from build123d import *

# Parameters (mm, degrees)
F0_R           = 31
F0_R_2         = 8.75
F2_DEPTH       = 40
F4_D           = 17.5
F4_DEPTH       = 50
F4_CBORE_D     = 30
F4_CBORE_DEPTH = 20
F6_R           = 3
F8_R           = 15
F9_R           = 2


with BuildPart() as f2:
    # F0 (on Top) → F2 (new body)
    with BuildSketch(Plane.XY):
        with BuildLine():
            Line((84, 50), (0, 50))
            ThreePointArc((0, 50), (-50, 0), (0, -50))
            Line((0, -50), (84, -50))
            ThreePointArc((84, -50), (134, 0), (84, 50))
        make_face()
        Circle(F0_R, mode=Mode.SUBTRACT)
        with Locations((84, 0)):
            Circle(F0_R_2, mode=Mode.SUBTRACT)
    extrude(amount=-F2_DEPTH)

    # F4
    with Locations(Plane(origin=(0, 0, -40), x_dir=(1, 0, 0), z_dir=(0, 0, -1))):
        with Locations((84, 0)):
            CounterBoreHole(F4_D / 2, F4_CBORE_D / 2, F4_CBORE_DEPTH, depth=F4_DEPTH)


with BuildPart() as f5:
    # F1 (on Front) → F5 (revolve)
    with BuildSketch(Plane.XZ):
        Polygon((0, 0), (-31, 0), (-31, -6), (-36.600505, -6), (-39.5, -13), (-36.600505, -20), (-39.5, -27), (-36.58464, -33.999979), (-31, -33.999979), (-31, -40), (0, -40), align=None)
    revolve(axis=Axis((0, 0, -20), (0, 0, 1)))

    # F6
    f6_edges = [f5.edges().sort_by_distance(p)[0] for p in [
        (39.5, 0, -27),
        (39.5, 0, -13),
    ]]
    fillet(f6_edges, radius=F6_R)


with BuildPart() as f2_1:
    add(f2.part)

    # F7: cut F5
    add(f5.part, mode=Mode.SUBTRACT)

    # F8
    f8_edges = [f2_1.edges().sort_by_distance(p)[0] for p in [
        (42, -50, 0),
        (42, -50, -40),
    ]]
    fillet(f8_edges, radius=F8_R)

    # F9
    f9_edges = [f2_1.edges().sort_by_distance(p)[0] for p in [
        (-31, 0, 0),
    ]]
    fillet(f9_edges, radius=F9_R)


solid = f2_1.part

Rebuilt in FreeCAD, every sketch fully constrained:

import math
import FreeCAD as App
import Part
import Sketcher

V = App.Vector
Q = App.Units.Quantity


def edges_at(feature, points):
    """Names of the edges that pass closest to the given points."""
    edges = feature.Shape.Edges
    near = lambda p: min(range(len(edges)), key=lambda i: edges[i].distToShape(Part.Vertex(*p))[0])
    return sorted({f"Edge{near(p) + 1}" for p in points})

doc = App.newDocument("Part")
body = doc.addObject("PartDesign::Body", "Body")

# Sketch on XY plane
sketch1 = body.newObject("Sketcher::SketchObject", "Sketch")
sketch1.AttachmentSupport = (doc.getObject("XY_Plane"), [""])
sketch1.MapMode = "FlatFace"
sketch1.addGeometry(Part.LineSegment(V(84, 50, 0), V(0, 50, 0)), False)
sketch1.addGeometry(Part.ArcOfCircle(Part.Circle(V(0, 0, 0), V(0, 0, 1), 50), math.radians(90), math.radians(270)), False)
sketch1.addGeometry(Part.LineSegment(V(0, -50, 0), V(84, -50, 0)), False)
sketch1.addGeometry(Part.ArcOfCircle(Part.Circle(V(84, 0, 0), V(0, 0, 1), 50), math.radians(-90), math.radians(90)), False)
sketch1.addGeometry(Part.Circle(V(0, 0, 0), V(0, 0, 1), 31), False)
sketch1.addGeometry(Part.Circle(V(84, 0, 0), V(0, 0, 1), 9), False)
sketch1.addConstraint(Sketcher.Constraint("Tangent", 0, 2, 1, 1))
sketch1.addConstraint(Sketcher.Constraint("Tangent", 1, 2, 2, 1))
sketch1.addConstraint(Sketcher.Constraint("Tangent", 2, 2, 3, 1))
sketch1.addConstraint(Sketcher.Constraint("Tangent", 3, 2, 0, 1))
sketch1.addConstraint(Sketcher.Constraint("Horizontal", 0))
sketch1.addConstraint(Sketcher.Constraint("Horizontal", 2))
sketch1.addConstraint(Sketcher.Constraint("Coincident", 1, 3, -1, 1))
sketch1.addConstraint(Sketcher.Constraint("Coincident", 4, 3, -1, 1))
sketch1.addConstraint(Sketcher.Constraint("Coincident", 5, 3, 3, 3))
sketch1.addConstraint(Sketcher.Constraint("Diameter", 4, Q("62 mm")))
sketch1.addConstraint(Sketcher.Constraint("Radius", 1, Q("50 mm")))
sketch1.addConstraint(Sketcher.Constraint("Diameter", 5, Q("17.5 mm")))
sketch1.addConstraint(Sketcher.Constraint("DistanceX", 0, 2, 0, 1, Q("84 mm")))
pad1 = body.newObject("PartDesign::Pad", "Pad")
pad1.Profile = sketch1
pad1.Length = 40
pad1.Reversed = True

# Sketch on XY plane
sketch2 = body.newObject("Sketcher::SketchObject", "Sketch001")
sketch2.AttachmentSupport = (doc.getObject("XY_Plane"), [""])
sketch2.MapMode = "FlatFace"
sketch2.AttachmentOffset = App.Placement(V(0, 0, -40), App.Rotation())
sketch2.addGeometry(Part.Circle(V(84, 0, 0), V(0, 0, 1), 9), False)
sketch2.addConstraint(Sketcher.Constraint("PointOnObject", 0, 3, -1))
sketch2.addConstraint(Sketcher.Constraint("Diameter", 0, Q("17.5 mm")))
sketch2.addConstraint(Sketcher.Constraint("DistanceX", -1, 1, 0, 3, Q("84 mm")))
doc.recompute()
hole = body.newObject("PartDesign::Hole", "Hole")
hole.Profile = sketch2
hole.ThreadType = "None"
hole.Diameter = 17.5
hole.DepthType = "Dimension"
hole.Depth = 50
hole.DrillPoint = "Flat"
hole.HoleCutType = "Counterbore"
hole.HoleCutDiameter = 30
hole.HoleCutDepth = 20
hole.Reversed = True
body2 = doc.addObject("PartDesign::Body", "Body001")

# Sketch on XZ plane
sketch3 = body2.newObject("Sketcher::SketchObject", "Sketch002")
sketch3.AttachmentSupport = (doc.getObject("XZ_Plane001"), [""])
sketch3.MapMode = "FlatFace"
sketch3.addGeometry(Part.LineSegment(V(0, 0, 0), V(-31, 0, 0)), False)
sketch3.addGeometry(Part.LineSegment(V(-31, 0, 0), V(-31, -6, 0)), False)
sketch3.addGeometry(Part.LineSegment(V(-31, -6, 0), V(-36.600505, -6, 0)), False)
sketch3.addGeometry(Part.LineSegment(V(-36.600505, -6, 0), V(-39.5, -13, 0)), False)
sketch3.addGeometry(Part.LineSegment(V(-39.5, -13, 0), V(-36.600505, -20, 0)), False)
sketch3.addGeometry(Part.LineSegment(V(-36.600505, -20, 0), V(-39.5, -27, 0)), False)
sketch3.addGeometry(Part.LineSegment(V(-39.5, -27, 0), V(-36.58464, -33.999979, 0)), False)
sketch3.addGeometry(Part.LineSegment(V(-36.58464, -33.999979, 0), V(-31, -33.999979, 0)), False)
sketch3.addGeometry(Part.LineSegment(V(-31, -33.999979, 0), V(-31, -40, 0)), False)
sketch3.addGeometry(Part.LineSegment(V(-31, -40, 0), V(0, -40, 0)), False)
sketch3.addGeometry(Part.LineSegment(V(0, -40, 0), V(0, 0, 0)), False)
sketch3.addConstraint(Sketcher.Constraint("Coincident", 0, 2, 1, 1))
sketch3.addConstraint(Sketcher.Constraint("Coincident", 1, 2, 2, 1))
sketch3.addConstraint(Sketcher.Constraint("Coincident", 2, 2, 3, 1))
sketch3.addConstraint(Sketcher.Constraint("Coincident", 3, 2, 4, 1))
sketch3.addConstraint(Sketcher.Constraint("Coincident", 4, 2, 5, 1))
sketch3.addConstraint(Sketcher.Constraint("Coincident", 5, 2, 6, 1))
sketch3.addConstraint(Sketcher.Constraint("Coincident", 6, 2, 7, 1))
sketch3.addConstraint(Sketcher.Constraint("Coincident", 7, 2, 8, 1))
sketch3.addConstraint(Sketcher.Constraint("Coincident", 8, 2, 9, 1))
sketch3.addConstraint(Sketcher.Constraint("Coincident", 9, 2, 10, 1))
sketch3.addConstraint(Sketcher.Constraint("Coincident", 10, 2, 0, 1))
sketch3.addConstraint(Sketcher.Constraint("Horizontal", 0))
sketch3.addConstraint(Sketcher.Constraint("Vertical", 1))
sketch3.addConstraint(Sketcher.Constraint("Horizontal", 2))
sketch3.addConstraint(Sketcher.Constraint("Horizontal", 7))
sketch3.addConstraint(Sketcher.Constraint("Vertical", 8))
sketch3.addConstraint(Sketcher.Constraint("Horizontal", 9))
sketch3.addConstraint(Sketcher.Constraint("Vertical", 10))
sketch3.addConstraint(Sketcher.Constraint("Coincident", 10, 2, -1, 1))
sketch3.addConstraint(Sketcher.Constraint("Parallel", 3, 5))
sketch3.addConstraint(Sketcher.Constraint("Vertical", 2, 2, 4, 2))
sketch3.addConstraint(Sketcher.Constraint("Vertical", 3, 2, 5, 2))
sketch3.addConstraint(Sketcher.Constraint("Vertical", 1, 2, 7, 2))
sketch3.addConstraint(Sketcher.Constraint("Equal", 3, 4))
sketch3.addConstraint(Sketcher.Constraint("DistanceX", 0, 2, 0, 1, Q("31 mm")))
sketch3.addConstraint(Sketcher.Constraint("DistanceY", 1, 2, 1, 1, Q("6 mm")))
sketch3.addConstraint(Sketcher.Constraint("DistanceY", 10, 1, 10, 2, Q("40 mm")))
sketch3.addConstraint(Sketcher.Constraint("DistanceY", 3, 2, -1, 1, Q("13 mm")))
sketch3.addConstraint(Sketcher.Constraint("Angle", 3, Q("-112.5 deg")))
sketch3.addConstraint(Sketcher.Constraint("DistanceX", 3, 2, -1, 1, Q("39.5 mm")))
sketch3.addConstraint(Sketcher.Constraint("DistanceX", 7, 1, 7, 2, Q("5.58464 mm")))
sketch3.addConstraint(Sketcher.Constraint("DistanceY", 8, 2, 8, 1, Q("6.000021 mm")))
revolution = body2.newObject("PartDesign::Revolution", "Revolution")
revolution.Profile = sketch3
revolution.ReferenceAxis = (sketch3, ["V_Axis"])
revolution.Angle = 360
doc.recompute()

fillet = body2.newObject("PartDesign::Fillet", "Fillet")
fillet.Base = (revolution, edges_at(revolution, [(39.5, 0, -27), (39.5, 0, -13)]))
fillet.Radius = 3
doc.recompute()

boolean = body.newObject("PartDesign::Boolean", "Boolean")
boolean.Type = "Cut"
boolean.addObjects([body2])
doc.recompute()

fillet2 = body.newObject("PartDesign::Fillet", "Fillet001")
fillet2.Base = (boolean, edges_at(boolean, [(42, -50, 0), (42, -50, -40)]))
fillet2.Radius = 15
doc.recompute()

fillet3 = body.newObject("PartDesign::Fillet", "Fillet002")
fillet3.Base = (fillet2, edges_at(fillet2, [(-31, 0, 0)]))
fillet3.Radius = 2

doc.recompute()
